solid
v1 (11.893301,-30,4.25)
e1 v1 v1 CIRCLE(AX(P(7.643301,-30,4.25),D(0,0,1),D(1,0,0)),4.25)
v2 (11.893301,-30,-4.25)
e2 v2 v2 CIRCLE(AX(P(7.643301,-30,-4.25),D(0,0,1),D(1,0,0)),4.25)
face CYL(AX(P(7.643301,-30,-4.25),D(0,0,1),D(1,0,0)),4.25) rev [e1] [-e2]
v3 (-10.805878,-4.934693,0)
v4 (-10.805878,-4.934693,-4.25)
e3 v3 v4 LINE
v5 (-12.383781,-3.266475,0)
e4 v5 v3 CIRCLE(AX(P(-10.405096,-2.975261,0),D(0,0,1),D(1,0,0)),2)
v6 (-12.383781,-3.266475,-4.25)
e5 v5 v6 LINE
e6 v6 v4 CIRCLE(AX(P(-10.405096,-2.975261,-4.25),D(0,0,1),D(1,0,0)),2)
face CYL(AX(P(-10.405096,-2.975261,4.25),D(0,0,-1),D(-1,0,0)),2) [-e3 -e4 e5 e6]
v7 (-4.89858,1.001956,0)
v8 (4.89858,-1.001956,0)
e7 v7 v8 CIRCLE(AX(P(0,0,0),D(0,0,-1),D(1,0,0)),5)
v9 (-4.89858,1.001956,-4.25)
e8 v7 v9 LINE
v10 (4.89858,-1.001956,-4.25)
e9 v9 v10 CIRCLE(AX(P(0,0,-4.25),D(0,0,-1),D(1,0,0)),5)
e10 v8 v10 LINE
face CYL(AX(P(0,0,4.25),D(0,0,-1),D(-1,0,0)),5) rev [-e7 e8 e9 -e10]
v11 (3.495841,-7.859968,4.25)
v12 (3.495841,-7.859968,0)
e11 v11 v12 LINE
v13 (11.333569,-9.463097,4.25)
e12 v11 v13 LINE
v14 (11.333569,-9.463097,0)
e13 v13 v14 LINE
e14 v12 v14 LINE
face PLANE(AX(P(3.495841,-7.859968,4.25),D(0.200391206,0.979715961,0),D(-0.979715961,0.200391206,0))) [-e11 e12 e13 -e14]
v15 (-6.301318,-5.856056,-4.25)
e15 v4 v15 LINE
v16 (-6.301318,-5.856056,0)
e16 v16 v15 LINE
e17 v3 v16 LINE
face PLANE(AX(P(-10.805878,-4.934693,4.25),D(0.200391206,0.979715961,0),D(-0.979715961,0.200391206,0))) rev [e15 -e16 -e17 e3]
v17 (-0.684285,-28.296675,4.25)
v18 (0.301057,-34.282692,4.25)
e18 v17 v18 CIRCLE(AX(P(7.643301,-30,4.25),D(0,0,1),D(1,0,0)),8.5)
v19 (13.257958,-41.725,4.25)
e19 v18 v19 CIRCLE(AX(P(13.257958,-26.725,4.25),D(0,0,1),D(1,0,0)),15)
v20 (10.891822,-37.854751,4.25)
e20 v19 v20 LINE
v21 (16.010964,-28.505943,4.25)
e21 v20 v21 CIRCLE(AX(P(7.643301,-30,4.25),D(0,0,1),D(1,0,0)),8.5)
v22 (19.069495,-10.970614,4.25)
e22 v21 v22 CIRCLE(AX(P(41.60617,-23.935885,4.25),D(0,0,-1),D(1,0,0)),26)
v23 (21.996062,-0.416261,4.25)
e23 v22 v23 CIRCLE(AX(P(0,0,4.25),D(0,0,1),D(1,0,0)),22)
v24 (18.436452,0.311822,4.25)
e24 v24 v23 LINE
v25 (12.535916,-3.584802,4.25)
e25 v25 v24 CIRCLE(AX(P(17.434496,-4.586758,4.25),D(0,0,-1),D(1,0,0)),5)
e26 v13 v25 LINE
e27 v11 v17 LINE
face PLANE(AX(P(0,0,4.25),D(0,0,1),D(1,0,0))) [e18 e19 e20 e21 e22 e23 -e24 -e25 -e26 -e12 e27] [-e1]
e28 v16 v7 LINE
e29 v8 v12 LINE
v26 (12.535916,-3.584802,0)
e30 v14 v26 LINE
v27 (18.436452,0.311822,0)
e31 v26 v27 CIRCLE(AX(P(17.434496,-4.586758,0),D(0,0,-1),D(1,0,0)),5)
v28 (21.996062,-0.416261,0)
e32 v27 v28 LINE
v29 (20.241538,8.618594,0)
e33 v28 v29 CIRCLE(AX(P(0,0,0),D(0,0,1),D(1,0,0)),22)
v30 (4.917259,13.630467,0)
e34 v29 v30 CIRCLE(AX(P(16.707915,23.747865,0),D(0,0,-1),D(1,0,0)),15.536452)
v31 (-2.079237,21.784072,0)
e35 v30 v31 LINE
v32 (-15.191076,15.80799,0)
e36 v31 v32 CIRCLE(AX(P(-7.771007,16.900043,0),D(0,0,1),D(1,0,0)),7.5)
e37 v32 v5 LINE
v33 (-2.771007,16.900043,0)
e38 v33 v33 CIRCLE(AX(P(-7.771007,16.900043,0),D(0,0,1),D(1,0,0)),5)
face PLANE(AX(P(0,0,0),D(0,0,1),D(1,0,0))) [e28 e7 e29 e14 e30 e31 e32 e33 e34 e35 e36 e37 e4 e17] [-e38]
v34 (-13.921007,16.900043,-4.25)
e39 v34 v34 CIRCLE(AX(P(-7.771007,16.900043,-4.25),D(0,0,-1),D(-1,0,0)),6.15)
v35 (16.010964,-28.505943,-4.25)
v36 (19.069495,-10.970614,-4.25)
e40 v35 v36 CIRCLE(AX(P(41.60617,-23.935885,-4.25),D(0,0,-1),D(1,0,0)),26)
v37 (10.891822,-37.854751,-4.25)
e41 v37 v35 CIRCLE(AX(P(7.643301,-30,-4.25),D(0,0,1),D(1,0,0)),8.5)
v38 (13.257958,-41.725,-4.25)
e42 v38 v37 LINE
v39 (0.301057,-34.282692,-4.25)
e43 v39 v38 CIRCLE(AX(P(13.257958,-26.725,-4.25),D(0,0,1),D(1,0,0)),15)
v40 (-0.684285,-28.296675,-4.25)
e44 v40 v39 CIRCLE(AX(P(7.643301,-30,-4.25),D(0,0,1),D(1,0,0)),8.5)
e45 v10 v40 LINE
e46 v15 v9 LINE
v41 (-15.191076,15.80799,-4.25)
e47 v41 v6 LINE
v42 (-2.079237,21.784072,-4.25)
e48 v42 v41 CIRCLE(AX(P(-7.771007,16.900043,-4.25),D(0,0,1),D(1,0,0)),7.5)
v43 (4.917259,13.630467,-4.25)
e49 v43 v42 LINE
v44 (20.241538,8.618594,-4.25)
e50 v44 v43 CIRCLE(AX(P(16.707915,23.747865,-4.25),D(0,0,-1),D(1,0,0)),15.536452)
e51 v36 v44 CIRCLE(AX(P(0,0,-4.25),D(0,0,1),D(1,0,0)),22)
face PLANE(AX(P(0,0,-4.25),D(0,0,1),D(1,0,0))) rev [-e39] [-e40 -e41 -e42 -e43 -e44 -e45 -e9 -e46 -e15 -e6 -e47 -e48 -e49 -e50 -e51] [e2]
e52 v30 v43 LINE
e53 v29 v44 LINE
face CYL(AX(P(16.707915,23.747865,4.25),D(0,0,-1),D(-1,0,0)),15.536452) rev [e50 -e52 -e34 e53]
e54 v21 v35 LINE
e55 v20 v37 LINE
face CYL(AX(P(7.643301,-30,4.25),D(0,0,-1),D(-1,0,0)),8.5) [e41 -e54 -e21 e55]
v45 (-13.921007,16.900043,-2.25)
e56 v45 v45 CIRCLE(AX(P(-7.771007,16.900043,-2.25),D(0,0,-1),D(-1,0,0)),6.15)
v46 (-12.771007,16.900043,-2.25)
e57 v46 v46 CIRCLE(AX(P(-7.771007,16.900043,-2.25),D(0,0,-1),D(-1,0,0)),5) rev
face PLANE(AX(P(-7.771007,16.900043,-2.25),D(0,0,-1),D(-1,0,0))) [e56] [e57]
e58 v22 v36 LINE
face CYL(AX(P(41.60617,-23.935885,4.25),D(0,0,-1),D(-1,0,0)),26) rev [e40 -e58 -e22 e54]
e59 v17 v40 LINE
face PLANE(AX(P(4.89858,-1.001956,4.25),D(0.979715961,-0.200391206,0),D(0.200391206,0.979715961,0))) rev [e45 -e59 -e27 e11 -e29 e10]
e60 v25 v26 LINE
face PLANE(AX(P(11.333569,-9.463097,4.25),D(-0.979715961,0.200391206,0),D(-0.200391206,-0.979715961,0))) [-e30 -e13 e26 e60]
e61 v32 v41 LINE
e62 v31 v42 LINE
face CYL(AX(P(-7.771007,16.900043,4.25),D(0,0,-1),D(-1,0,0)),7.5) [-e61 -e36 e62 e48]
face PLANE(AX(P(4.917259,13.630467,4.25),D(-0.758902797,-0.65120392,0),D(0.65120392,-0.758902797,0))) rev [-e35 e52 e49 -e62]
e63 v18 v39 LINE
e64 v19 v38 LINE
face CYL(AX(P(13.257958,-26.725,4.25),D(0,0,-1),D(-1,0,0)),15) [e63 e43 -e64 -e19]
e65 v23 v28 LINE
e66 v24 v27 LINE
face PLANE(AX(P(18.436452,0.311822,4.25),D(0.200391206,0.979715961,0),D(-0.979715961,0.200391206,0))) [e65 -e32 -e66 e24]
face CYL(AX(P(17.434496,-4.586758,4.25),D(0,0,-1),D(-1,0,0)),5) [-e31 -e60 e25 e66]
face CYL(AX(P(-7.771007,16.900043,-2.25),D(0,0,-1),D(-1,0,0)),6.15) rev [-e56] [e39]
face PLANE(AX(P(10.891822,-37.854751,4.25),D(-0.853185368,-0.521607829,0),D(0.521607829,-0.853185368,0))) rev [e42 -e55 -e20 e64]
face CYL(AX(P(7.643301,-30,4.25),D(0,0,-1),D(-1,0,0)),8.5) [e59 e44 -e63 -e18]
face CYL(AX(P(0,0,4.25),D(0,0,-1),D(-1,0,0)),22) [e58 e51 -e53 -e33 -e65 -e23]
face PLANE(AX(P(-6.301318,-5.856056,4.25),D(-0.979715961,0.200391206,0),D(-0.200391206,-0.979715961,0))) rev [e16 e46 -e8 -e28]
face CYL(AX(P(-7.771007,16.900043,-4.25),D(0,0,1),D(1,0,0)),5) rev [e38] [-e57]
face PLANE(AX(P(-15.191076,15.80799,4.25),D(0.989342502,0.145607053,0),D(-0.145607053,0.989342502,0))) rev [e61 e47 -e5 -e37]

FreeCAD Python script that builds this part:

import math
import FreeCAD as App
import Part
import Sketcher
from FreeCAD import Vector

doc = App.newDocument("Part")
params = doc.addObject("Spreadsheet::Sheet", "Params")
for row, (alias, value) in enumerate([
    ("sketch1_radius", "26 mm"),
    ("sketch1_radius2", "22 mm"),
    ("sketch1_radius3", "2 mm"),
    ("sketch1_radius4", "5 mm"),
    ("sketch1_radius5", "15 mm"),
    ("pad1_length", "8.5 mm"),
    ("sketch2_radius", "5 mm"),
    ("sketch2_radius2", "22 mm"),
    ("sketch2_radius3", "2 mm"),
    ("sketch2_radius4", "7.5 mm"),
    ("sketch2_length", "7 mm"),
    ("sketch3_diameter", "10 mm"),
    ("sketch3_diameter2", "8.5 mm"),
    ("sketch4_diameter", "12.3 mm"),
    ("pocket3_length", "2 mm"),
], start=1):
    params.set(f"A{row}", alias)
    params.set(f"B{row}", "=" + value)
    params.setAlias(f"B{row}", alias)

body = doc.addObject("PartDesign::Body", "Body")

# Sketch on XY plane
sketch1 = body.newObject("Sketcher::SketchObject", "Sketch")
sketch1.AttachmentSupport = (doc.getObject("XY_Plane"), [""])
sketch1.MapMode = "FlatFace"
sketch1.addGeometry(Part.LineSegment(Vector(13.3, -41.7, 0), Vector(10.9, -37.9, 0)), False)
sketch1.addGeometry(Part.ArcOfCircle(Part.Circle(Vector(7.6, -30, 0), Vector(0, 0, 1), 8.5), math.radians(-68), math.radians(10)), False)
sketch1.addGeometry(Part.ArcOfCircle(Part.Circle(Vector(41.6, -23.9, 0), Vector(0, 0, 1), 26), math.radians(150), math.radians(190)), False)
sketch1.addGeometry(Part.ArcOfCircle(Part.Circle(Vector(0, 0, 0), Vector(0, 0, 1), 22), math.radians(-30), math.radians(23)), False)
sketch1.addGeometry(Part.ArcOfCircle(Part.Circle(Vector(16.7, 23.7, 0), Vector(0, 0, 1), 15.5), math.radians(-139), math.radians(-77)), False)
sketch1.addGeometry(Part.LineSegment(Vector(4.9, 13.6, 0), Vector(-2.1, 21.8, 0)), False)
sketch1.addGeometry(Part.ArcOfCircle(Part.Circle(Vector(-7.8, 16.9, 0), Vector(0, 0, 1), 7.5), math.radians(41), math.radians(188)), False)
sketch1.addGeometry(Part.LineSegment(Vector(-15.2, 15.8, 0), Vector(-12.4, -3.3, 0)), False)
sketch1.addGeometry(Part.ArcOfCircle(Part.Circle(Vector(-10.4, -3, 0), Vector(0, 0, 1), 2), math.radians(-172), math.radians(-102)), False)
sketch1.addGeometry(Part.LineSegment(Vector(-10.8, -4.9, 0), Vector(-6.3, -5.9, 0)), False)
sketch1.addGeometry(Part.LineSegment(Vector(-6.3, -5.9, 0), Vector(-4.9, 1, 0)), False)
sketch1.addGeometry(Part.ArcOfCircle(Part.Circle(Vector(0, 0, 0), Vector(0, 0, 1), 5), math.radians(-12), math.radians(168)), False)
sketch1.addGeometry(Part.LineSegment(Vector(4.9, -1, 0), Vector(-0.7, -28.3, 0)), False)
sketch1.addGeometry(Part.ArcOfCircle(Part.Circle(Vector(7.6, -30, 0), Vector(0, 0, 1), 8.5), math.radians(168), math.radians(210)), False)
sketch1.addGeometry(Part.ArcOfCircle(Part.Circle(Vector(13.3, -26.7, 0), Vector(0, 0, 1), 15), math.radians(-150), math.radians(-90)), False)
sketch1.addConstraint(Sketcher.Constraint("Coincident", 0, 2, 1, 1))
sketch1.addConstraint(Sketcher.Constraint("Tangent", 1, 2, 2, 2))
sketch1.addConstraint(Sketcher.Constraint("Tangent", 2, 1, 3, 1))
sketch1.addConstraint(Sketcher.Constraint("Coincident", 3, 2, 4, 2))
sketch1.addConstraint(Sketcher.Constraint("Tangent", 4, 1, 5, 1))
sketch1.addConstraint(Sketcher.Constraint("Tangent", 5, 2, 6, 1))
sketch1.addConstraint(Sketcher.Constraint("Tangent", 6, 2, 7, 1))
sketch1.addConstraint(Sketcher.Constraint("Tangent", 7, 2, 8, 1))
sketch1.addConstraint(Sketcher.Constraint("Tangent", 8, 2, 9, 1))
sketch1.addConstraint(Sketcher.Constraint("Coincident", 9, 2, 10, 1))
sketch1.addConstraint(Sketcher.Constraint("Tangent", 10, 2, 11, 2))
sketch1.addConstraint(Sketcher.Constraint("Tangent", 11, 1, 12, 1))
sketch1.addConstraint(Sketcher.Constraint("Tangent", 12, 2, 13, 1))
sketch1.addConstraint(Sketcher.Constraint("Tangent", 13, 2, 14, 1))
sketch1.addConstraint(Sketcher.Constraint("Coincident", 14, 2, 0, 1))
sketch1.addConstraint(Sketcher.Constraint("Coincident", 3, 3, -1, 1))
sketch1.addConstraint(Sketcher.Constraint("Coincident", 11, 3, -1, 1))
sketch1.addConstraint(Sketcher.Constraint("Coincident", 13, 3, 1, 3))
sketch1.addConstraint(Sketcher.Constraint("Equal", 1, 13))
sketch1.addConstraint(Sketcher.Constraint("Perpendicular", 9, 10))
sketch1.addConstraint(Sketcher.Constraint("Parallel", 10, 12))
sketch1.addConstraint(Sketcher.Constraint("Radius", 2, 26.0))
sketch1.addConstraint(Sketcher.Constraint("Radius", 3, 22.0))
sketch1.addConstraint(Sketcher.Constraint("Radius", 8, 2.0))
sketch1.addConstraint(Sketcher.Constraint("Radius", 11, 5.0))
sketch1.addConstraint(Sketcher.Constraint("Radius", 14, 15.0))
sketch1.addConstraint(Sketcher.Constraint("Radius", 1, 8.5))
sketch1.addConstraint(Sketcher.Constraint("Radius", 6, 7.5))
sketch1.addConstraint(Sketcher.Constraint("Distance", 10, 7.0))
sketch1.addConstraint(Sketcher.Constraint("DistanceY", 1, 3, -1, 1, 30.0))
sketch1.addConstraint(Sketcher.Constraint("DistanceY", 14, 3, -1, 1, 26.725))
sketch1.addConstraint(Sketcher.Constraint("Radius", 4, 15.536452))
sketch1.addConstraint(Sketcher.Constraint("DistanceX", -1, 1, 1, 3, 7.643301))
sketch1.addConstraint(Sketcher.Constraint("DistanceY", 4, 1, 4, 3, 10.117399))
sketch1.addConstraint(Sketcher.Constraint("DistanceX", 8, 2, 10, 2, 5.907299))
sketch1.addConstraint(Sketcher.Constraint("DistanceX", 13, 2, 14, 2, 12.956901))
sketch1.addConstraint(Sketcher.Constraint("Distance", 5, 10.743939))
sketch1.addConstraint(Sketcher.Constraint("Distance", 7, 19.27994))
sketch1.addConstraint(Sketcher.Constraint("DistanceY", 0, 2, -1, 1, 37.854751))
sketch1.addConstraint(Sketcher.Constraint("DistanceX", -1, 1, 4, 1, 4.917259))
sketch1.setExpression("Constraints[21]", "Params.sketch1_radius")
sketch1.setExpression("Constraints[22]", "Params.sketch1_radius2")
sketch1.setExpression("Constraints[23]", "Params.sketch1_radius3")
sketch1.setExpression("Constraints[24]", "Params.sketch1_radius4")
sketch1.setExpression("Constraints[25]", "Params.sketch1_radius5")
pad1 = body.newObject("PartDesign::Pad", "Pad")
pad1.Profile = sketch1
pad1.setExpression("Length", "Params.pad1_length")
pad1.Midplane = True

# Sketch on XY plane
sketch2 = body.newObject("Sketcher::SketchObject", "Sketch001")
sketch2.AttachmentSupport = (doc.getObject("XY_Plane"), [""])
sketch2.MapMode = "FlatFace"
sketch2.addGeometry(Part.LineSegment(Vector(4.9, -1, 0), Vector(3.5, -7.9, 0)), False)
sketch2.addGeometry(Part.LineSegment(Vector(3.5, -7.9, 0), Vector(11.3, -9.5, 0)), False)
sketch2.addGeometry(Part.LineSegment(Vector(11.3, -9.5, 0), Vector(12.5, -3.6, 0)), False)
sketch2.addGeometry(Part.ArcOfCircle(Part.Circle(Vector(17.4, -4.6, 0), Vector(0, 0, 1), 5), math.radians(78), math.radians(168)), False)
sketch2.addGeometry(Part.LineSegment(Vector(18.4, 0.3, 0), Vector(22, -0.4, 0)), False)
sketch2.addGeometry(Part.ArcOfCircle(Part.Circle(Vector(0, 0, 0), Vector(0, 0, 1), 22), math.radians(-1), math.radians(23)), False)
sketch2.addGeometry(Part.ArcOfCircle(Part.Circle(Vector(16.7, 23.7, 0), Vector(0, 0, 1), 15.5), math.radians(-139), math.radians(-77)), False)
sketch2.addGeometry(Part.LineSegment(Vector(4.9, 13.6, 0), Vector(-2.1, 21.8, 0)), False)
sketch2.addGeometry(Part.ArcOfCircle(Part.Circle(Vector(-7.8, 16.9, 0), Vector(0, 0, 1), 7.5), math.radians(41), math.radians(188)), False)
sketch2.addGeometry(Part.LineSegment(Vector(-15.2, 15.8, 0), Vector(-12.4, -3.3, 0)), False)
sketch2.addGeometry(Part.ArcOfCircle(Part.Circle(Vector(-10.4, -3, 0), Vector(0, 0, 1), 2), math.radians(-172), math.radians(-102)), False)
sketch2.addGeometry(Part.LineSegment(Vector(-10.8, -4.9, 0), Vector(-6.3, -5.9, 0)), False)
sketch2.addGeometry(Part.LineSegment(Vector(-6.3, -5.9, 0), Vector(-4.9, 1, 0)), False)
sketch2.addGeometry(Part.ArcOfCircle(Part.Circle(Vector(0, 0, 0), Vector(0, 0, 1), 5), math.radians(-12), math.radians(168)), False)
sketch2.addConstraint(Sketcher.Constraint("Coincident", 0, 2, 1, 1))
sketch2.addConstraint(Sketcher.Constraint("Coincident", 1, 2, 2, 1))
sketch2.addConstraint(Sketcher.Constraint("Tangent", 2, 2, 3, 2))
sketch2.addConstraint(Sketcher.Constraint("Tangent", 3, 1, 4, 1))
sketch2.addConstraint(Sketcher.Constraint("Coincident", 4, 2, 5, 1))
sketch2.addConstraint(Sketcher.Constraint("Coincident", 5, 2, 6, 2))
sketch2.addConstraint(Sketcher.Constraint("Tangent", 6, 1, 7, 1))
sketch2.addConstraint(Sketcher.Constraint("Tangent", 7, 2, 8, 1))
sketch2.addConstraint(Sketcher.Constraint("Tangent", 8, 2, 9, 1))
sketch2.addConstraint(Sketcher.Constraint("Tangent", 9, 2, 10, 1))
sketch2.addConstraint(Sketcher.Constraint("Tangent", 10, 2, 11, 1))
sketch2.addConstraint(Sketcher.Constraint("Coincident", 11, 2, 12, 1))
sketch2.addConstraint(Sketcher.Constraint("Tangent", 12, 2, 13, 2))
sketch2.addConstraint(Sketcher.Constraint("Tangent", 13, 1, 0, 1))
sketch2.addConstraint(Sketcher.Constraint("Coincident", 5, 3, -1, 1))
sketch2.addConstraint(Sketcher.Constraint("Coincident", 13, 3, -1, 1))
sketch2.addConstraint(Sketcher.Constraint("Equal", 3, 13))
sketch2.addConstraint(Sketcher.Constraint("Perpendicular", 0, 1))
sketch2.addConstraint(Sketcher.Constraint("Perpendicular", 1, 2))
sketch2.addConstraint(Sketcher.Constraint("Perpendicular", 2, 4))
sketch2.addConstraint(Sketcher.Constraint("Parallel", 4, 11))
sketch2.addConstraint(Sketcher.Constraint("Perpendicular", 11, 12))
sketch2.addConstraint(Sketcher.Constraint("Equal", 0, 12))
sketch2.addConstraint(Sketcher.Constraint("Radius", 3, 5.0))
sketch2.addConstraint(Sketcher.Constraint("Radius", 5, 22.0))
sketch2.addConstraint(Sketcher.Constraint("Radius", 10, 2.0))
sketch2.addConstraint(Sketcher.Constraint("Radius", 8, 7.5))
sketch2.addConstraint(Sketcher.Constraint("Distance", 0, 7.0))
sketch2.addConstraint(Sketcher.Constraint("Distance", 1, 8.0))
sketch2.addConstraint(Sketcher.Constraint("Distance", 2, 6.0))
sketch2.addConstraint(Sketcher.Constraint("Radius", 6, 15.536452))
sketch2.addConstraint(Sketcher.Constraint("DistanceY", 2, 2, -1, 1, 3.584802))
sketch2.addConstraint(Sketcher.Constraint("DistanceY", 3, 3, 8, 3, 21.4868))
sketch2.addConstraint(Sketcher.Constraint("DistanceY", 6, 1, 6, 3, 10.117399))
sketch2.addConstraint(Sketcher.Constraint("DistanceX", 10, 2, 12, 2, 5.907299))
sketch2.addConstraint(Sketcher.Constraint("Distance", 7, 10.743939))
sketch2.addConstraint(Sketcher.Constraint("Distance", 9, 19.27994))
sketch2.setExpression("Constraints[23]", "Params.sketch2_radius")
sketch2.setExpression("Constraints[24]", "Params.sketch2_radius2")
sketch2.setExpression("Constraints[25]", "Params.sketch2_radius3")
sketch2.setExpression("Constraints[26]", "Params.sketch2_radius4")
sketch2.setExpression("Constraints[27]", "Params.sketch2_length")
pocket1 = body.newObject("PartDesign::Pocket", "Pocket")
pocket1.Profile = sketch2
pocket1.Type = "ThroughAll"
pocket1.Reversed = True

# Sketch on XY plane
sketch3 = body.newObject("Sketcher::SketchObject", "Sketch002")
sketch3.AttachmentSupport = (doc.getObject("XY_Plane"), [""])
sketch3.MapMode = "FlatFace"
sketch3.addGeometry(Part.Circle(Vector(-7.771007, 16.900043, 0), Vector(0, 0, 1), 5), False)
sketch3.addGeometry(Part.Circle(Vector(7.643301, -30, 0), Vector(0, 0, 1), 4.25), False)
sketch3.addConstraint(Sketcher.Constraint("Diameter", 0, 10.0))
sketch3.addConstraint(Sketcher.Constraint("Diameter", 1, 8.5))
sketch3.addConstraint(Sketcher.Constraint("DistanceY", 1, 3, -1, 1, 30.0))
sketch3.addConstraint(Sketcher.Constraint("DistanceX", -1, 1, 1, 3, 7.643301))
sketch3.addConstraint(Sketcher.Constraint("DistanceX", 0, 3, 1, 3, 15.414308))
sketch3.addConstraint(Sketcher.Constraint("DistanceY", -1, 1, 0, 3, 16.900043))
sketch3.setExpression("Constraints[0]", "Params.sketch3_diameter")
sketch3.setExpression("Constraints[1]", "Params.sketch3_diameter2")
pocket2 = body.newObject("PartDesign::Pocket", "Pocket001")
pocket2.Profile = sketch3
pocket2.Type = "ThroughAll"
pocket2.Midplane = True

# Sketch on XY plane
sketch4 = body.newObject("Sketcher::SketchObject", "Sketch003")
sketch4.AttachmentSupport = (doc.getObject("XY_Plane"), [""])
sketch4.MapMode = "FlatFace"
sketch4.AttachmentOffset = App.Placement(Vector(0, 0, -4.25), App.Rotation())
sketch4.addGeometry(Part.Circle(Vector(-8, 17, 0), Vector(0, 0, 1), 6), False)
sketch4.addConstraint(Sketcher.Constraint("Diameter", 0, 12.3))
sketch4.addConstraint(Sketcher.Constraint("DistanceX", 0, 3, -1, 1, 7.771007))
sketch4.addConstraint(Sketcher.Constraint("DistanceY", -1, 1, 0, 3, 16.900043))
sketch4.setExpression("Constraints[0]", "Params.sketch4_diameter")
pocket3 = body.newObject("PartDesign::Pocket", "Pocket002")
pocket3.Profile = sketch4
pocket3.setExpression("Length", "Params.pocket3_length")
pocket3.Reversed = True

doc.recompute()
